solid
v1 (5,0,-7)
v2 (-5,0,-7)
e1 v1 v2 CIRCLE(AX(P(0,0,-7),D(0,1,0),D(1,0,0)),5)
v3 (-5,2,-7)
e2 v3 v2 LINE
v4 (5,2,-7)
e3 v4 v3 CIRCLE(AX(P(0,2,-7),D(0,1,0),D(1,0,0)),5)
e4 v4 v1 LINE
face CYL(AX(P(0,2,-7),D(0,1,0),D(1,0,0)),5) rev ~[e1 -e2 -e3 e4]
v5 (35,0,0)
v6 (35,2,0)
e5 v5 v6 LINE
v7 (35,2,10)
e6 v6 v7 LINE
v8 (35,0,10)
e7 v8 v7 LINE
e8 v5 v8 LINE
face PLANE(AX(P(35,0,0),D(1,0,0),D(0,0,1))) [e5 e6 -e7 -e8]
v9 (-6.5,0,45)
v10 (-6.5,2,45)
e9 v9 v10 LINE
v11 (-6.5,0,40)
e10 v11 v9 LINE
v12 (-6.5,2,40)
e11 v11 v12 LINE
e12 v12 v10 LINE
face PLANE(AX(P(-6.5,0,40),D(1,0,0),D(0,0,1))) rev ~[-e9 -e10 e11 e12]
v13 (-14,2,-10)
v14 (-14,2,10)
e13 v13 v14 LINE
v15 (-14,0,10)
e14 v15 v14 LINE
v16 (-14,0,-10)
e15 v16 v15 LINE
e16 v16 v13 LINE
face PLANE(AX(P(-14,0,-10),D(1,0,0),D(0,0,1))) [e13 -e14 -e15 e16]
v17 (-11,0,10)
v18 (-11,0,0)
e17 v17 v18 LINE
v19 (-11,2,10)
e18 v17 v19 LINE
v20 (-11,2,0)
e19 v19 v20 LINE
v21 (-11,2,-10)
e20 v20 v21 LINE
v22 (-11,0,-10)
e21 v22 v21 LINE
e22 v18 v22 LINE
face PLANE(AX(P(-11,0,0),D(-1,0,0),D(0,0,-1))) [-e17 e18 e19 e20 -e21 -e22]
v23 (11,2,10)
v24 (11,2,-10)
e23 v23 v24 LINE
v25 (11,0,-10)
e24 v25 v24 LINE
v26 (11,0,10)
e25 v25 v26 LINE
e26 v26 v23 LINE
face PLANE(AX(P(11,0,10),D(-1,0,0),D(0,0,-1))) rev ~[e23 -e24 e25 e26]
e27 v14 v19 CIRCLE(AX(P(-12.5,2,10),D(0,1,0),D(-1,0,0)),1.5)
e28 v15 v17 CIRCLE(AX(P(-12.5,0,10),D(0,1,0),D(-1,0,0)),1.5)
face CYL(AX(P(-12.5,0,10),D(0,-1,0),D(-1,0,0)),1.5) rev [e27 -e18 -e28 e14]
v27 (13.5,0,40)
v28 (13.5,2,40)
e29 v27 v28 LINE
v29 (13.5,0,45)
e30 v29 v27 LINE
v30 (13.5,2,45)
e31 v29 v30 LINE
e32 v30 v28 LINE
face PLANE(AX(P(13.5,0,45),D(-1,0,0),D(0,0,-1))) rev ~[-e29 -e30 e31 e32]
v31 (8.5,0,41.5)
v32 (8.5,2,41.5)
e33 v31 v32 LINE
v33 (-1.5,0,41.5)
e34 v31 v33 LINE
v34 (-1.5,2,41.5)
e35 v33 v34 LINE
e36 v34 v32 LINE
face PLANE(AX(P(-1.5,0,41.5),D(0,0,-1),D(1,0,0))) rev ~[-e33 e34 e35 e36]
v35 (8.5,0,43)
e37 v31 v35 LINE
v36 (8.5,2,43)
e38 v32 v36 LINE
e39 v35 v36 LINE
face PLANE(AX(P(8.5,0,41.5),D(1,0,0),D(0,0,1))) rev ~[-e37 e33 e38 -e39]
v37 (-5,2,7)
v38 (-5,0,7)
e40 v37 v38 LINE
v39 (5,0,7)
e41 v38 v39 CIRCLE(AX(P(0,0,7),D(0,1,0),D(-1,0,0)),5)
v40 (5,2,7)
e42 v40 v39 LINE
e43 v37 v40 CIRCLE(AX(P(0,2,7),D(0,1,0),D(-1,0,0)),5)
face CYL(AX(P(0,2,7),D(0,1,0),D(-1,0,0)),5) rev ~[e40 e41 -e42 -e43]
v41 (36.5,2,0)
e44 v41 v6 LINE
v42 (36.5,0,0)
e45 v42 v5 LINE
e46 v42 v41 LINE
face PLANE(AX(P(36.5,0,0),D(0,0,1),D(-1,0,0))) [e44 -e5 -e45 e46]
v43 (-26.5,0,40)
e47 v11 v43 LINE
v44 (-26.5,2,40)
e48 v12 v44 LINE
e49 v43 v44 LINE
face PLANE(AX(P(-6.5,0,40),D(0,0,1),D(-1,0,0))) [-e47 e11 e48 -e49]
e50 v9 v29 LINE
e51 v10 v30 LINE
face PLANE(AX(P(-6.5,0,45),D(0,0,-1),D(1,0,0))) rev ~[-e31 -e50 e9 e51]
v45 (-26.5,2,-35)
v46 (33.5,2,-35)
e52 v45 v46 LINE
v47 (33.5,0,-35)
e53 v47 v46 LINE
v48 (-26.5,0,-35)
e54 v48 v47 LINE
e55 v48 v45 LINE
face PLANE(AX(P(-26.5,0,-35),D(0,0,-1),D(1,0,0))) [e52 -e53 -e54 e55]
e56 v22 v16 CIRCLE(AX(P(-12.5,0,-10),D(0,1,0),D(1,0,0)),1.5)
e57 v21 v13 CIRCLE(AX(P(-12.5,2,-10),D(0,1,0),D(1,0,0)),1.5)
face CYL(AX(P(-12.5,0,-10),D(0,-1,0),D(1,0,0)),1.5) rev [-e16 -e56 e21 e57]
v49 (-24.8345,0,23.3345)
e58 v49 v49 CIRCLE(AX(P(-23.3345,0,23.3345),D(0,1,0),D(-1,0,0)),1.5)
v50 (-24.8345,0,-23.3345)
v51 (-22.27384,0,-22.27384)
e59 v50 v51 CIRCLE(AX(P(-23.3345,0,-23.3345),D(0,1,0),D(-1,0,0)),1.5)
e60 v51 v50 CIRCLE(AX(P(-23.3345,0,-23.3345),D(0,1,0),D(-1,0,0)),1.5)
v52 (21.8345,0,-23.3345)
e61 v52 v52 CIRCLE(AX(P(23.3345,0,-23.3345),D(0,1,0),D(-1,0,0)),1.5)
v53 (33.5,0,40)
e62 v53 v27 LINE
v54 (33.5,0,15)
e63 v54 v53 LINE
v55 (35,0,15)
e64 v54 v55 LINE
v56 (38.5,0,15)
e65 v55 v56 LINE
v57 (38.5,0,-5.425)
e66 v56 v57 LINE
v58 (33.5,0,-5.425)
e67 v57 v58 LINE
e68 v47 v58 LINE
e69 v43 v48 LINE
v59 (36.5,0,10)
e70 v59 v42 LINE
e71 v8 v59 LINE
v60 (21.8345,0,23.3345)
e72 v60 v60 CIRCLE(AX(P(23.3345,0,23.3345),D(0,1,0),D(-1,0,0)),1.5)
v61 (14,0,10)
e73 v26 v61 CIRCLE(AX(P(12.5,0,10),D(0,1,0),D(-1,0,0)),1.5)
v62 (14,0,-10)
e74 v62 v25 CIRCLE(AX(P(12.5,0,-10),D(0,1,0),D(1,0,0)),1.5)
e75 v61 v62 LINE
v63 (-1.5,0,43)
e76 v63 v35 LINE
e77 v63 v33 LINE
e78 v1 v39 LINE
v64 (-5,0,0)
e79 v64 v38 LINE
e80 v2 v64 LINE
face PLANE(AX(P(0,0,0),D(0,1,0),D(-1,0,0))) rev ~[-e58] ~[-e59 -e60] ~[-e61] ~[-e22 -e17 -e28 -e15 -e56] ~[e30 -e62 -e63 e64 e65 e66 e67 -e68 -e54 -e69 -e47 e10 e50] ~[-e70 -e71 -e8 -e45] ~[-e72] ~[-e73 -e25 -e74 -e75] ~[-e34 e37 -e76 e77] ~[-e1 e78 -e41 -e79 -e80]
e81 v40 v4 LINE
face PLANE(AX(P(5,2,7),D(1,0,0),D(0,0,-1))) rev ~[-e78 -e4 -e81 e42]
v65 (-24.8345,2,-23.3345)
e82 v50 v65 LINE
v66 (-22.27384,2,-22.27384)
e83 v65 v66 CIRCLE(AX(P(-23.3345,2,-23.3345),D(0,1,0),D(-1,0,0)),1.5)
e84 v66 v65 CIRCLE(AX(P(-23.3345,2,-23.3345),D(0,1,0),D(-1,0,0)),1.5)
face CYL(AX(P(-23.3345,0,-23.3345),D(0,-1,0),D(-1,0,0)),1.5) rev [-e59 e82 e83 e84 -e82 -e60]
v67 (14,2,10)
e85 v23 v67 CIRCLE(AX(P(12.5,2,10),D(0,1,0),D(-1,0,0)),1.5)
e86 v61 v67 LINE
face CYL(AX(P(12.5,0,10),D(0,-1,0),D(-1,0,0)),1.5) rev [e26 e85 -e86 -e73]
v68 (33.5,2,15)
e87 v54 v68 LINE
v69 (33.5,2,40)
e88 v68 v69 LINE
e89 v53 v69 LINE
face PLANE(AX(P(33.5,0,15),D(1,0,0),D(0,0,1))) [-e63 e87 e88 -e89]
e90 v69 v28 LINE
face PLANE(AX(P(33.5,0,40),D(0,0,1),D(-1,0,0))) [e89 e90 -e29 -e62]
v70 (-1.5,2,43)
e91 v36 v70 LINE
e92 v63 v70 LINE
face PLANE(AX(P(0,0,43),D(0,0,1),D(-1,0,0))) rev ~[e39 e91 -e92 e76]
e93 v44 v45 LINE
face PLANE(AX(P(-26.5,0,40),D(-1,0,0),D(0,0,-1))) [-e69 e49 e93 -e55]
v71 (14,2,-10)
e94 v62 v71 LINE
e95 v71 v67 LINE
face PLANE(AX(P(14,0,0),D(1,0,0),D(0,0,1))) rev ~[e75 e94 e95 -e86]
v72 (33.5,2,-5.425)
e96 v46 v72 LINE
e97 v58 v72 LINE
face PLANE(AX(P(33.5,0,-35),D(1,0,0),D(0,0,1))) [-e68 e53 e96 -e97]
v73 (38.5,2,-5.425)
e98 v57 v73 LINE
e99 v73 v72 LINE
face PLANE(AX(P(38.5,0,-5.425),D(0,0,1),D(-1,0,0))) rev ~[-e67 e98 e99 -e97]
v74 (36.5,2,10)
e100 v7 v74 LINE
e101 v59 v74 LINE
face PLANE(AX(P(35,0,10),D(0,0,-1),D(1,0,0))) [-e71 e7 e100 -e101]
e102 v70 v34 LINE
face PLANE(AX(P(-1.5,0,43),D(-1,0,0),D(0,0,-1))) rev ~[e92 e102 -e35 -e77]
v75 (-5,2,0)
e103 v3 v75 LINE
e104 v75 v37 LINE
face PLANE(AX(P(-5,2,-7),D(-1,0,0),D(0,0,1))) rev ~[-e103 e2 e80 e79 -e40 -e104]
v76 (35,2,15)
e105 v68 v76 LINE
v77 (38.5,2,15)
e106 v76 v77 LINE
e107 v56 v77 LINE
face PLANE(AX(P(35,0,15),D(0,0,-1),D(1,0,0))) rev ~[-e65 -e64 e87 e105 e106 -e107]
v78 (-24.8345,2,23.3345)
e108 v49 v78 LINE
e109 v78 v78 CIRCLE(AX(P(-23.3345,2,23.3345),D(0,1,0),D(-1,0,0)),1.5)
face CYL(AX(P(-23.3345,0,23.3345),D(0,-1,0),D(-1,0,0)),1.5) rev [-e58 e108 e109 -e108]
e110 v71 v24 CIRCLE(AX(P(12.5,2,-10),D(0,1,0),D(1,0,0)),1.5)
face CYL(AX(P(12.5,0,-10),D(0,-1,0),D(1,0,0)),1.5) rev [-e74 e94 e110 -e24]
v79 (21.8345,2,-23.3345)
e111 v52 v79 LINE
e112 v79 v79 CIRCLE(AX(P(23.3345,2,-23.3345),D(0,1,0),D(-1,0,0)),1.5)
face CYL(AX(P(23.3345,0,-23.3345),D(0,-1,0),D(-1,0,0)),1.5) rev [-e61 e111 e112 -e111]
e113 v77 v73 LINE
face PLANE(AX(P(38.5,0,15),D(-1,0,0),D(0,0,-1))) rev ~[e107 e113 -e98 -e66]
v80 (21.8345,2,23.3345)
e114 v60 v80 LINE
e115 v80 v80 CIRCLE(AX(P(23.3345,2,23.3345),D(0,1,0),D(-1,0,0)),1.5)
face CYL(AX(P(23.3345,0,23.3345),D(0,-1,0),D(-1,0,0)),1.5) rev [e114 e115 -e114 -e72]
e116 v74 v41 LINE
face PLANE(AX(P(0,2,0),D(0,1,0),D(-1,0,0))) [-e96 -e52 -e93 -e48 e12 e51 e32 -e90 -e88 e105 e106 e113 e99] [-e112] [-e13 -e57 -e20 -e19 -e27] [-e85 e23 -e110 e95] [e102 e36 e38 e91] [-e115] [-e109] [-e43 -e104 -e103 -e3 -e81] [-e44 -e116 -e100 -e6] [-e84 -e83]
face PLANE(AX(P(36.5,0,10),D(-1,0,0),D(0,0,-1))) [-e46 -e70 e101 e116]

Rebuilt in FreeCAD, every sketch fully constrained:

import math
import FreeCAD as App
import Part
import Sketcher
from FreeCAD import Vector
Q = App.Units.Quantity

doc = App.newDocument("Part")
body = doc.addObject("PartDesign::Body", "Body")

sketch1 = doc.addObject("Sketcher::SketchObject", "Sketch")
body.addObject(sketch1)
sketch1.AttachmentSupport = (doc.XZ_Plane, [""])
sketch1.MapMode = "FlatFace"
sketch1.addGeometry(Part.LineSegment(Vector(-26.5, 40, 0), Vector(-6.5, 40, 0)), False)
sketch1.addGeometry(Part.LineSegment(Vector(-6.5, 40, 0), Vector(-6.5, 45, 0)), False)
sketch1.addGeometry(Part.LineSegment(Vector(-6.5, 45, 0), Vector(13.5, 45, 0)), False)
sketch1.addGeometry(Part.LineSegment(Vector(13.5, 45, 0), Vector(13.5, 40, 0)), False)
sketch1.addGeometry(Part.LineSegment(Vector(13.5, 40, 0), Vector(33.5, 40, 0)), False)
sketch1.addGeometry(Part.LineSegment(Vector(33.5, 40, 0), Vector(33.5, 15, 0)), False)
sketch1.addGeometry(Part.LineSegment(Vector(33.5, 15, 0), Vector(35, 15, 0)), False)
sketch1.addGeometry(Part.LineSegment(Vector(35, 15, 0), Vector(38.5, 15, 0)), False)
sketch1.addGeometry(Part.LineSegment(Vector(38.5, 15, 0), Vector(38.5, -5.4, 0)), False)
sketch1.addGeometry(Part.LineSegment(Vector(38.5, -5.4, 0), Vector(33.5, -5.4, 0)), False)
sketch1.addGeometry(Part.LineSegment(Vector(33.5, -5.4, 0), Vector(33.5, -35, 0)), False)
sketch1.addGeometry(Part.LineSegment(Vector(33.5, -35, 0), Vector(-26.5, -35, 0)), False)
sketch1.addGeometry(Part.LineSegment(Vector(-26.5, -35, 0), Vector(-26.5, 40, 0)), False)
sketch1.addGeometry(Part.Circle(Vector(0, 0, 0), Vector(0, 0, 1), 5), False)
sketch1.addGeometry(Part.LineSegment(Vector(-11, -10, 0), Vector(-11, 0, 0)), False)
sketch1.addGeometry(Part.LineSegment(Vector(-11, 0, 0), Vector(-11, 10, 0)), False)
sketch1.addGeometry(Part.ArcOfCircle(Part.Circle(Vector(-12.5, 10, 0), Vector(0, 0, 1), 1.5), math.radians(0), math.radians(180)), False)
sketch1.addGeometry(Part.LineSegment(Vector(-14, 10, 0), Vector(-14, -10, 0)), False)
sketch1.addGeometry(Part.ArcOfCircle(Part.Circle(Vector(-12.5, -10, 0), Vector(0, 0, 1), 1.5), math.radians(180), math.radians(360)), False)
sketch1.addGeometry(Part.LineSegment(Vector(11, 10, 0), Vector(11, -10, 0)), False)
sketch1.addGeometry(Part.ArcOfCircle(Part.Circle(Vector(12.5, -10, 0), Vector(0, 0, 1), 1.5), math.radians(180), math.radians(360)), False)
sketch1.addGeometry(Part.LineSegment(Vector(14, -10, 0), Vector(14, 10, 0)), False)
sketch1.addGeometry(Part.ArcOfCircle(Part.Circle(Vector(12.5, 10, 0), Vector(0, 0, 1), 1.5), math.radians(0), math.radians(180)), False)
sketch1.addGeometry(Part.Circle(Vector(-23.3, 23.3, 0), Vector(0, 0, 1), 1.5), False)
sketch1.addGeometry(Part.Circle(Vector(23.3, -23.3, 0), Vector(0, 0, 1), 1.5), False)
sketch1.addGeometry(Part.Circle(Vector(-23.3, -23.3, 0), Vector(0, 0, 1), 1.5), False)
sketch1.addGeometry(Part.Circle(Vector(23.3, 23.3, 0), Vector(0, 0, 1), 1.5), False)
sketch1.addGeometry(Part.LineSegment(Vector(-1.5, 41.5, 0), Vector(8.5, 41.5, 0)), False)
sketch1.addGeometry(Part.LineSegment(Vector(8.5, 41.5, 0), Vector(8.5, 43, 0)), False)
sketch1.addGeometry(Part.LineSegment(Vector(8.5, 43, 0), Vector(-1.5, 43, 0)), False)
sketch1.addGeometry(Part.LineSegment(Vector(-1.5, 43, 0), Vector(-1.5, 41.5, 0)), False)
sketch1.addConstraint(Sketcher.Constraint("Coincident", 0, 2, 1, 1))
sketch1.addConstraint(Sketcher.Constraint("Coincident", 1, 2, 2, 1))
sketch1.addConstraint(Sketcher.Constraint("Coincident", 2, 2, 3, 1))
sketch1.addConstraint(Sketcher.Constraint("Coincident", 3, 2, 4, 1))
sketch1.addConstraint(Sketcher.Constraint("Coincident", 4, 2, 5, 1))
sketch1.addConstraint(Sketcher.Constraint("Coincident", 5, 2, 6, 1))
sketch1.addConstraint(Sketcher.Constraint("Coincident", 6, 2, 7, 1))
sketch1.addConstraint(Sketcher.Constraint("Coincident", 7, 2, 8, 1))
sketch1.addConstraint(Sketcher.Constraint("Coincident", 8, 2, 9, 1))
sketch1.addConstraint(Sketcher.Constraint("Coincident", 9, 2, 10, 1))
sketch1.addConstraint(Sketcher.Constraint("Coincident", 10, 2, 11, 1))
sketch1.addConstraint(Sketcher.Constraint("Coincident", 11, 2, 12, 1))
sketch1.addConstraint(Sketcher.Constraint("Coincident", 12, 2, 0, 1))
sketch1.addConstraint(Sketcher.Constraint("Coincident", 14, 2, 15, 1))
sketch1.addConstraint(Sketcher.Constraint("Tangent", 15, 2, 16, 1))
sketch1.addConstraint(Sketcher.Constraint("Tangent", 16, 2, 17, 1))
sketch1.addConstraint(Sketcher.Constraint("Tangent", 17, 2, 18, 1))
sketch1.addConstraint(Sketcher.Constraint("Tangent", 18, 2, 14, 1))
sketch1.addConstraint(Sketcher.Constraint("Tangent", 19, 2, 20, 1))
sketch1.addConstraint(Sketcher.Constraint("Tangent", 20, 2, 21, 1))
sketch1.addConstraint(Sketcher.Constraint("Tangent", 21, 2, 22, 1))
sketch1.addConstraint(Sketcher.Constraint("Tangent", 22, 2, 19, 1))
sketch1.addConstraint(Sketcher.Constraint("Coincident", 27, 2, 28, 1))
sketch1.addConstraint(Sketcher.Constraint("Coincident", 28, 2, 29, 1))
sketch1.addConstraint(Sketcher.Constraint("Coincident", 29, 2, 30, 1))
sketch1.addConstraint(Sketcher.Constraint("Coincident", 30, 2, 27, 1))
sketch1.addConstraint(Sketcher.Constraint("Horizontal", 0))
sketch1.addConstraint(Sketcher.Constraint("Vertical", 1))
sketch1.addConstraint(Sketcher.Constraint("Horizontal", 2))
sketch1.addConstraint(Sketcher.Constraint("Vertical", 3))
sketch1.addConstraint(Sketcher.Constraint("Horizontal", 4))
sketch1.addConstraint(Sketcher.Constraint("Vertical", 5))
sketch1.addConstraint(Sketcher.Constraint("Horizontal", 6))
sketch1.addConstraint(Sketcher.Constraint("Horizontal", 7))
sketch1.addConstraint(Sketcher.Constraint("Vertical", 8))
sketch1.addConstraint(Sketcher.Constraint("Horizontal", 9))
sketch1.addConstraint(Sketcher.Constraint("Vertical", 10))
sketch1.addConstraint(Sketcher.Constraint("Horizontal", 11))
sketch1.addConstraint(Sketcher.Constraint("Vertical", 12))
sketch1.addConstraint(Sketcher.Constraint("Vertical", 14))
sketch1.addConstraint(Sketcher.Constraint("Vertical", 15))
sketch1.addConstraint(Sketcher.Constraint("Vertical", 17))
sketch1.addConstraint(Sketcher.Constraint("Vertical", 19))
sketch1.addConstraint(Sketcher.Constraint("Vertical", 21))
sketch1.addConstraint(Sketcher.Constraint("Horizontal", 27))
sketch1.addConstraint(Sketcher.Constraint("Vertical", 28))
sketch1.addConstraint(Sketcher.Constraint("Horizontal", 29))
sketch1.addConstraint(Sketcher.Constraint("Vertical", 30))
sketch1.addConstraint(Sketcher.Constraint("Coincident", 13, 3, -1, 1))
sketch1.addConstraint(Sketcher.Constraint("Equal", 18, 20))
sketch1.addConstraint(Sketcher.Constraint("Equal", 22, 23))
sketch1.addConstraint(Sketcher.Constraint("Equal", 23, 24))
sketch1.addConstraint(Sketcher.Constraint("Equal", 24, 25))
sketch1.addConstraint(Sketcher.Constraint("Equal", 25, 26))
sketch1.addConstraint(Sketcher.Constraint("Symmetric", 16, 3, 20, 3, -1, 1))
sketch1.addConstraint(Sketcher.Constraint("Symmetric", 23, 3, 24, 3, -1, 1))
sketch1.addConstraint(Sketcher.Constraint("Symmetric", 25, 3, 26, 3, -1, 1))
sketch1.addConstraint(Sketcher.Constraint("Symmetric", 24, 3, 25, 3, -2))
sketch1.addConstraint(Sketcher.Constraint("PointOnObject", 14, 2, -1))
sketch1.addConstraint(Sketcher.Constraint("Horizontal", 18, 3, 20, 3))
sketch1.addConstraint(Sketcher.Constraint("Horizontal", 16, 3, 22, 3))
sketch1.addConstraint(Sketcher.Constraint("Horizontal", 0, 2, 3, 2))
sketch1.addConstraint(Sketcher.Constraint("Vertical", 5, 2, 9, 2))
sketch1.addConstraint(Sketcher.Constraint("Equal", 0, 2))
sketch1.addConstraint(Sketcher.Constraint("Equal", 2, 4))
sketch1.addConstraint(Sketcher.Constraint("Equal", 9, 1))
sketch1.addConstraint(Sketcher.Constraint("Equal", 29, 14))
sketch1.addConstraint(Sketcher.Constraint("Equal", 4, 17))
sketch1.addConstraint(Sketcher.Constraint("Equal", 6, 28))
sketch1.addConstraint(Sketcher.Constraint("Diameter", 13, Q("10 mm")))
sketch1.addConstraint(Sketcher.Constraint("Diameter", 23, Q("3 mm")))
sketch1.addConstraint(Sketcher.Constraint("DistanceX", 0, 1, 0, 2, Q("20 mm")))
sketch1.addConstraint(Sketcher.Constraint("DistanceX", 9, 2, 9, 1, Q("5 mm")))
sketch1.addConstraint(Sketcher.Constraint("DistanceY", 5, 2, 5, 1, Q("25 mm")))
sketch1.addConstraint(Sketcher.Constraint("DistanceY", 12, 1, 12, 2, Q("75 mm")))
sketch1.addConstraint(Sketcher.Constraint("DistanceX", 6, 1, 6, 2, Q("1.5 mm")))
sketch1.addConstraint(Sketcher.Constraint("DistanceY", -1, 1, 1, 2, Q("45 mm")))
sketch1.addConstraint(Sketcher.Constraint("DistanceX", 18, 3, 20, 3, Q("25 mm")))
sketch1.addConstraint(Sketcher.Constraint("DistanceX", 27, 2, 3, 2, Q("5 mm")))
sketch1.addConstraint(Sketcher.Constraint("DistanceY", 3, 2, 28, 2, Q("3 mm")))
sketch1.addConstraint(Sketcher.Constraint("DistanceX", -1, 1, 4, 2, Q("33.5 mm")))
sketch1.addConstraint(Sketcher.Constraint("DistanceY", 8, 2, 8, 1, Q("20.425 mm")))
sketch1.addConstraint(Sketcher.Constraint("DistanceY", 25, 3, 23, 3, Q("46.669 mm")))
sketch1.addConstraint(Sketcher.Constraint("DistanceX", 23, 3, 26, 3, Q("46.669 mm")))
pad1 = doc.addObject("PartDesign::Pad", "Pad")
body.addObject(pad1)
pad1.Profile = sketch1
pad1.Length = 2
pad1.Reversed = True

sketch2 = doc.addObject("Sketcher::SketchObject", "Sketch001")
body.addObject(sketch2)
sketch2.AttachmentSupport = (doc.XZ_Plane, [""])
sketch2.MapMode = "FlatFace"
sketch2.addGeometry(Part.LineSegment(Vector(35, 0, 0), Vector(35, 10, 0)), False)
sketch2.addGeometry(Part.LineSegment(Vector(35, 10, 0), Vector(36.5, 10, 0)), False)
sketch2.addGeometry(Part.LineSegment(Vector(36.5, 10, 0), Vector(36.5, 0, 0)), False)
sketch2.addGeometry(Part.LineSegment(Vector(36.5, 0, 0), Vector(35, 0, 0)), False)
sketch2.addConstraint(Sketcher.Constraint("Coincident", 0, 2, 1, 1))
sketch2.addConstraint(Sketcher.Constraint("Coincident", 1, 2, 2, 1))
sketch2.addConstraint(Sketcher.Constraint("Coincident", 2, 2, 3, 1))
sketch2.addConstraint(Sketcher.Constraint("Coincident", 3, 2, 0, 1))
sketch2.addConstraint(Sketcher.Constraint("Vertical", 0))
sketch2.addConstraint(Sketcher.Constraint("Horizontal", 1))
sketch2.addConstraint(Sketcher.Constraint("Vertical", 2))
sketch2.addConstraint(Sketcher.Constraint("Horizontal", 3))
sketch2.addConstraint(Sketcher.Constraint("PointOnObject", 2, 2, -1))
sketch2.addConstraint(Sketcher.Constraint("DistanceY", 0, 1, 0, 2, Q("10 mm")))
sketch2.addConstraint(Sketcher.Constraint("DistanceX", 1, 1, 1, 2, Q("1.5 mm")))
sketch2.addConstraint(Sketcher.Constraint("DistanceX", -1, 1, 0, 2, Q("35 mm")))
pocket1 = doc.addObject("PartDesign::Pocket", "Pocket")
body.addObject(pocket1)
pocket1.Profile = sketch2
pocket1.Length = 2

sketch3 = doc.addObject("Sketcher::SketchObject", "Sketch002")
body.addObject(sketch3)
sketch3.AttachmentSupport = (doc.XZ_Plane, [""])
sketch3.MapMode = "FlatFace"
sketch3.AttachmentOffset = App.Placement(Vector(0, 0, -2), App.Rotation())
sketch3.addGeometry(Part.ArcOfCircle(Part.Circle(Vector(0, 7, 0), Vector(0, 0, 1), 5), math.radians(0), math.radians(180)), False)
sketch3.addGeometry(Part.LineSegment(Vector(5, 7, 0), Vector(5, -7, 0)), False)
sketch3.addGeometry(Part.ArcOfCircle(Part.Circle(Vector(0, -7, 0), Vector(0, 0, 1), 5), math.radians(180), math.radians(360)), False)
sketch3.addGeometry(Part.LineSegment(Vector(-5, -7, 0), Vector(-5, 7, 0)), False)
sketch3.addConstraint(Sketcher.Constraint("Tangent", 0, 1, 1, 1))
sketch3.addConstraint(Sketcher.Constraint("Tangent", 1, 2, 2, 2))
sketch3.addConstraint(Sketcher.Constraint("Tangent", 2, 1, 3, 1))
sketch3.addConstraint(Sketcher.Constraint("Tangent", 3, 2, 0, 2))
sketch3.addConstraint(Sketcher.Constraint("Vertical", 1))
sketch3.addConstraint(Sketcher.Constraint("Vertical", 3))
sketch3.addConstraint(Sketcher.Constraint("Symmetric", 0, 3, 2, 3, -1, 1))
sketch3.addConstraint(Sketcher.Constraint("Radius", 0, Q("5 mm")))
sketch3.addConstraint(Sketcher.Constraint("DistanceY", -1, 1, 0, 3, Q("7 mm")))
pocket2 = doc.addObject("PartDesign::Pocket", "Pocket001")
body.addObject(pocket2)
pocket2.Profile = sketch3
pocket2.Length = 10
pocket2.Reversed = True

doc.recompute()
